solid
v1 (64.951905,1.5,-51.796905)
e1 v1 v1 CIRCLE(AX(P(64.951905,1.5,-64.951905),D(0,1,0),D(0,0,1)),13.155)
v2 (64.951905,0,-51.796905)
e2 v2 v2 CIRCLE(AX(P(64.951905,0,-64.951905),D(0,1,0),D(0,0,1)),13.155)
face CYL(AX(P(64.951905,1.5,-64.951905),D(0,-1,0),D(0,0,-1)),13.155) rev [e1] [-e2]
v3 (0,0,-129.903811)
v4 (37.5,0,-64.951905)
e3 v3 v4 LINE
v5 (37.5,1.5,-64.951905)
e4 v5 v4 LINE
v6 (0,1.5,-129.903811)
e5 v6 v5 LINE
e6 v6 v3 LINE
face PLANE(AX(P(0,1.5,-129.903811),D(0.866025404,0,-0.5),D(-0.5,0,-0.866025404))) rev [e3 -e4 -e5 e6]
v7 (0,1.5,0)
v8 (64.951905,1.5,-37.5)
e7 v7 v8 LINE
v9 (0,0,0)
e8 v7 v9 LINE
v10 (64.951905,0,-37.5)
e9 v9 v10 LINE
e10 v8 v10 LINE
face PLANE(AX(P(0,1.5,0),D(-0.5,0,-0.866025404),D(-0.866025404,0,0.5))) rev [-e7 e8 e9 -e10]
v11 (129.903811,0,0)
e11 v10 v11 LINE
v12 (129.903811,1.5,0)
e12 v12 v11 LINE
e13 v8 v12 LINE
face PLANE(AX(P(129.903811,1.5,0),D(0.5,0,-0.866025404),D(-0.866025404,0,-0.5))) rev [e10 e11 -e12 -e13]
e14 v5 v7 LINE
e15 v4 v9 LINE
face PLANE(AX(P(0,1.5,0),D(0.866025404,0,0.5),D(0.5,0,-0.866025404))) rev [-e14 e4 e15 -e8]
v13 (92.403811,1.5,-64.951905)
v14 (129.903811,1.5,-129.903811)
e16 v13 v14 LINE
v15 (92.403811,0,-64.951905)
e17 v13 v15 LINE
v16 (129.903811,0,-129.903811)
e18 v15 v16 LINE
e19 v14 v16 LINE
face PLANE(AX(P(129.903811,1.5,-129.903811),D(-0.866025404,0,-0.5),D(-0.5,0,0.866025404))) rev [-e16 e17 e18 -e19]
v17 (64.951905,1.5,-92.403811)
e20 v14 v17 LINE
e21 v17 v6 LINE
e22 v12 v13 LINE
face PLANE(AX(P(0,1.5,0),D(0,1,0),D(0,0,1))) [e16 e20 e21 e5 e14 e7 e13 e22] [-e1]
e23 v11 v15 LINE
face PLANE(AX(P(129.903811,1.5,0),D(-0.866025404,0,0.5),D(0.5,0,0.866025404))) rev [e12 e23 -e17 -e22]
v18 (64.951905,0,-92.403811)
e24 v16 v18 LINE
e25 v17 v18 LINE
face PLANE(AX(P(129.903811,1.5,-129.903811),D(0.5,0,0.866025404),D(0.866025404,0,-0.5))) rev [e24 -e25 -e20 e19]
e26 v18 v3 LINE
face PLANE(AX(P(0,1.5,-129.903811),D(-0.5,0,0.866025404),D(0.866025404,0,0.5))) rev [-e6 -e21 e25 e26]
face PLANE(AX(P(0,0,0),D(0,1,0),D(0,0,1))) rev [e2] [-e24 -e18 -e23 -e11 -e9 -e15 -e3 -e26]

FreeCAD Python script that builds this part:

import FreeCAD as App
import Part
import Sketcher

V = App.Vector
Q = App.Units.Quantity

doc = App.newDocument("Part")
params = doc.addObject("Spreadsheet::Sheet", "Params")
for row, (alias, value) in enumerate([
    ("sketch1_diameter", "26.31 mm"),
    ("sketch1_length", "75 mm"),
    ("pad1_length", "1.5 mm"),
], start=1):
    params.set(f"A{row}", alias)
    params.set(f"B{row}", "=" + value)
    params.setAlias(f"B{row}", alias)

body = doc.addObject("PartDesign::Body", "Body")

# Sketch on XZ plane
sketch1 = doc.addObject("Sketcher::SketchObject", "Sketch")
body.addObject(sketch1)
sketch1.AttachmentSupport = (doc.XZ_Plane, [""])
sketch1.MapMode = "FlatFace"
sketch1.addGeometry([
    Part.LineSegment(V(38, -65, 0), V(0, 0, 0)),  # 0
    Part.LineSegment(V(0, 0, 0), V(65, -38, 0)),  # 1
    Part.LineSegment(V(65, -38, 0), V(130, 0, 0)),  # 2
    Part.LineSegment(V(130, 0, 0), V(92, -65, 0)),  # 3
    Part.LineSegment(V(92, -65, 0), V(130, -130, 0)),  # 4
    Part.LineSegment(V(130, -130, 0), V(65, -92, 0)),  # 5
    Part.LineSegment(V(65, -92, 0), V(0, -130, 0)),  # 6
    Part.LineSegment(V(0, -130, 0), V(38, -65, 0)),  # 7
    Part.Circle(V(65, -65, 0), V(0, 0, 1), 13),  # 8
], False)
sketch1.addConstraint([
    Sketcher.Constraint("Coincident", 0, 2, 1, 1),
    Sketcher.Constraint("Coincident", 1, 2, 2, 1),
    Sketcher.Constraint("Coincident", 2, 2, 3, 1),
    Sketcher.Constraint("Coincident", 3, 2, 4, 1),
    Sketcher.Constraint("Coincident", 4, 2, 5, 1),
    Sketcher.Constraint("Coincident", 5, 2, 6, 1),
    Sketcher.Constraint("Coincident", 6, 2, 7, 1),
    Sketcher.Constraint("Coincident", 7, 2, 0, 1),
    Sketcher.Constraint("Coincident", 0, 2, -1, 1),
    Sketcher.Constraint("PointOnObject", 2, 2, -1),
    Sketcher.Constraint("PointOnObject", 6, 2, -2),
    Sketcher.Constraint("Perpendicular", 0, 2),
    Sketcher.Constraint("Perpendicular", 1, 3),
    Sketcher.Constraint("Perpendicular", 2, 4),
    Sketcher.Constraint("Perpendicular", 3, 5),
    Sketcher.Constraint("Perpendicular", 4, 6),
    Sketcher.Constraint("Perpendicular", 5, 7),
    Sketcher.Constraint("Horizontal", 8, 3, 3, 2),
    Sketcher.Constraint("Horizontal", 4, 2, 6, 2),
    Sketcher.Constraint("Horizontal", 3, 2, 7, 2),
    Sketcher.Constraint("Vertical", 8, 3, 1, 2),
    Sketcher.Constraint("Vertical", 2, 2, 4, 2),
    Sketcher.Constraint("Equal", 0, 1),
    Sketcher.Constraint("Diameter", 8, 26.31),
    Sketcher.Constraint("Angle", 0, Q("120 deg")),
    Sketcher.Constraint("Distance", 0, 75.0),
])
sketch1.setExpression("Constraints[23]", "Params.sketch1_diameter")
sketch1.setExpression("Constraints[25]", "Params.sketch1_length")
pad1 = doc.addObject("PartDesign::Pad", "Pad")
body.addObject(pad1)
pad1.Profile = sketch1
pad1.setExpression("Length", "Params.pad1_length")
pad1.Reversed = True

doc.recompute()
